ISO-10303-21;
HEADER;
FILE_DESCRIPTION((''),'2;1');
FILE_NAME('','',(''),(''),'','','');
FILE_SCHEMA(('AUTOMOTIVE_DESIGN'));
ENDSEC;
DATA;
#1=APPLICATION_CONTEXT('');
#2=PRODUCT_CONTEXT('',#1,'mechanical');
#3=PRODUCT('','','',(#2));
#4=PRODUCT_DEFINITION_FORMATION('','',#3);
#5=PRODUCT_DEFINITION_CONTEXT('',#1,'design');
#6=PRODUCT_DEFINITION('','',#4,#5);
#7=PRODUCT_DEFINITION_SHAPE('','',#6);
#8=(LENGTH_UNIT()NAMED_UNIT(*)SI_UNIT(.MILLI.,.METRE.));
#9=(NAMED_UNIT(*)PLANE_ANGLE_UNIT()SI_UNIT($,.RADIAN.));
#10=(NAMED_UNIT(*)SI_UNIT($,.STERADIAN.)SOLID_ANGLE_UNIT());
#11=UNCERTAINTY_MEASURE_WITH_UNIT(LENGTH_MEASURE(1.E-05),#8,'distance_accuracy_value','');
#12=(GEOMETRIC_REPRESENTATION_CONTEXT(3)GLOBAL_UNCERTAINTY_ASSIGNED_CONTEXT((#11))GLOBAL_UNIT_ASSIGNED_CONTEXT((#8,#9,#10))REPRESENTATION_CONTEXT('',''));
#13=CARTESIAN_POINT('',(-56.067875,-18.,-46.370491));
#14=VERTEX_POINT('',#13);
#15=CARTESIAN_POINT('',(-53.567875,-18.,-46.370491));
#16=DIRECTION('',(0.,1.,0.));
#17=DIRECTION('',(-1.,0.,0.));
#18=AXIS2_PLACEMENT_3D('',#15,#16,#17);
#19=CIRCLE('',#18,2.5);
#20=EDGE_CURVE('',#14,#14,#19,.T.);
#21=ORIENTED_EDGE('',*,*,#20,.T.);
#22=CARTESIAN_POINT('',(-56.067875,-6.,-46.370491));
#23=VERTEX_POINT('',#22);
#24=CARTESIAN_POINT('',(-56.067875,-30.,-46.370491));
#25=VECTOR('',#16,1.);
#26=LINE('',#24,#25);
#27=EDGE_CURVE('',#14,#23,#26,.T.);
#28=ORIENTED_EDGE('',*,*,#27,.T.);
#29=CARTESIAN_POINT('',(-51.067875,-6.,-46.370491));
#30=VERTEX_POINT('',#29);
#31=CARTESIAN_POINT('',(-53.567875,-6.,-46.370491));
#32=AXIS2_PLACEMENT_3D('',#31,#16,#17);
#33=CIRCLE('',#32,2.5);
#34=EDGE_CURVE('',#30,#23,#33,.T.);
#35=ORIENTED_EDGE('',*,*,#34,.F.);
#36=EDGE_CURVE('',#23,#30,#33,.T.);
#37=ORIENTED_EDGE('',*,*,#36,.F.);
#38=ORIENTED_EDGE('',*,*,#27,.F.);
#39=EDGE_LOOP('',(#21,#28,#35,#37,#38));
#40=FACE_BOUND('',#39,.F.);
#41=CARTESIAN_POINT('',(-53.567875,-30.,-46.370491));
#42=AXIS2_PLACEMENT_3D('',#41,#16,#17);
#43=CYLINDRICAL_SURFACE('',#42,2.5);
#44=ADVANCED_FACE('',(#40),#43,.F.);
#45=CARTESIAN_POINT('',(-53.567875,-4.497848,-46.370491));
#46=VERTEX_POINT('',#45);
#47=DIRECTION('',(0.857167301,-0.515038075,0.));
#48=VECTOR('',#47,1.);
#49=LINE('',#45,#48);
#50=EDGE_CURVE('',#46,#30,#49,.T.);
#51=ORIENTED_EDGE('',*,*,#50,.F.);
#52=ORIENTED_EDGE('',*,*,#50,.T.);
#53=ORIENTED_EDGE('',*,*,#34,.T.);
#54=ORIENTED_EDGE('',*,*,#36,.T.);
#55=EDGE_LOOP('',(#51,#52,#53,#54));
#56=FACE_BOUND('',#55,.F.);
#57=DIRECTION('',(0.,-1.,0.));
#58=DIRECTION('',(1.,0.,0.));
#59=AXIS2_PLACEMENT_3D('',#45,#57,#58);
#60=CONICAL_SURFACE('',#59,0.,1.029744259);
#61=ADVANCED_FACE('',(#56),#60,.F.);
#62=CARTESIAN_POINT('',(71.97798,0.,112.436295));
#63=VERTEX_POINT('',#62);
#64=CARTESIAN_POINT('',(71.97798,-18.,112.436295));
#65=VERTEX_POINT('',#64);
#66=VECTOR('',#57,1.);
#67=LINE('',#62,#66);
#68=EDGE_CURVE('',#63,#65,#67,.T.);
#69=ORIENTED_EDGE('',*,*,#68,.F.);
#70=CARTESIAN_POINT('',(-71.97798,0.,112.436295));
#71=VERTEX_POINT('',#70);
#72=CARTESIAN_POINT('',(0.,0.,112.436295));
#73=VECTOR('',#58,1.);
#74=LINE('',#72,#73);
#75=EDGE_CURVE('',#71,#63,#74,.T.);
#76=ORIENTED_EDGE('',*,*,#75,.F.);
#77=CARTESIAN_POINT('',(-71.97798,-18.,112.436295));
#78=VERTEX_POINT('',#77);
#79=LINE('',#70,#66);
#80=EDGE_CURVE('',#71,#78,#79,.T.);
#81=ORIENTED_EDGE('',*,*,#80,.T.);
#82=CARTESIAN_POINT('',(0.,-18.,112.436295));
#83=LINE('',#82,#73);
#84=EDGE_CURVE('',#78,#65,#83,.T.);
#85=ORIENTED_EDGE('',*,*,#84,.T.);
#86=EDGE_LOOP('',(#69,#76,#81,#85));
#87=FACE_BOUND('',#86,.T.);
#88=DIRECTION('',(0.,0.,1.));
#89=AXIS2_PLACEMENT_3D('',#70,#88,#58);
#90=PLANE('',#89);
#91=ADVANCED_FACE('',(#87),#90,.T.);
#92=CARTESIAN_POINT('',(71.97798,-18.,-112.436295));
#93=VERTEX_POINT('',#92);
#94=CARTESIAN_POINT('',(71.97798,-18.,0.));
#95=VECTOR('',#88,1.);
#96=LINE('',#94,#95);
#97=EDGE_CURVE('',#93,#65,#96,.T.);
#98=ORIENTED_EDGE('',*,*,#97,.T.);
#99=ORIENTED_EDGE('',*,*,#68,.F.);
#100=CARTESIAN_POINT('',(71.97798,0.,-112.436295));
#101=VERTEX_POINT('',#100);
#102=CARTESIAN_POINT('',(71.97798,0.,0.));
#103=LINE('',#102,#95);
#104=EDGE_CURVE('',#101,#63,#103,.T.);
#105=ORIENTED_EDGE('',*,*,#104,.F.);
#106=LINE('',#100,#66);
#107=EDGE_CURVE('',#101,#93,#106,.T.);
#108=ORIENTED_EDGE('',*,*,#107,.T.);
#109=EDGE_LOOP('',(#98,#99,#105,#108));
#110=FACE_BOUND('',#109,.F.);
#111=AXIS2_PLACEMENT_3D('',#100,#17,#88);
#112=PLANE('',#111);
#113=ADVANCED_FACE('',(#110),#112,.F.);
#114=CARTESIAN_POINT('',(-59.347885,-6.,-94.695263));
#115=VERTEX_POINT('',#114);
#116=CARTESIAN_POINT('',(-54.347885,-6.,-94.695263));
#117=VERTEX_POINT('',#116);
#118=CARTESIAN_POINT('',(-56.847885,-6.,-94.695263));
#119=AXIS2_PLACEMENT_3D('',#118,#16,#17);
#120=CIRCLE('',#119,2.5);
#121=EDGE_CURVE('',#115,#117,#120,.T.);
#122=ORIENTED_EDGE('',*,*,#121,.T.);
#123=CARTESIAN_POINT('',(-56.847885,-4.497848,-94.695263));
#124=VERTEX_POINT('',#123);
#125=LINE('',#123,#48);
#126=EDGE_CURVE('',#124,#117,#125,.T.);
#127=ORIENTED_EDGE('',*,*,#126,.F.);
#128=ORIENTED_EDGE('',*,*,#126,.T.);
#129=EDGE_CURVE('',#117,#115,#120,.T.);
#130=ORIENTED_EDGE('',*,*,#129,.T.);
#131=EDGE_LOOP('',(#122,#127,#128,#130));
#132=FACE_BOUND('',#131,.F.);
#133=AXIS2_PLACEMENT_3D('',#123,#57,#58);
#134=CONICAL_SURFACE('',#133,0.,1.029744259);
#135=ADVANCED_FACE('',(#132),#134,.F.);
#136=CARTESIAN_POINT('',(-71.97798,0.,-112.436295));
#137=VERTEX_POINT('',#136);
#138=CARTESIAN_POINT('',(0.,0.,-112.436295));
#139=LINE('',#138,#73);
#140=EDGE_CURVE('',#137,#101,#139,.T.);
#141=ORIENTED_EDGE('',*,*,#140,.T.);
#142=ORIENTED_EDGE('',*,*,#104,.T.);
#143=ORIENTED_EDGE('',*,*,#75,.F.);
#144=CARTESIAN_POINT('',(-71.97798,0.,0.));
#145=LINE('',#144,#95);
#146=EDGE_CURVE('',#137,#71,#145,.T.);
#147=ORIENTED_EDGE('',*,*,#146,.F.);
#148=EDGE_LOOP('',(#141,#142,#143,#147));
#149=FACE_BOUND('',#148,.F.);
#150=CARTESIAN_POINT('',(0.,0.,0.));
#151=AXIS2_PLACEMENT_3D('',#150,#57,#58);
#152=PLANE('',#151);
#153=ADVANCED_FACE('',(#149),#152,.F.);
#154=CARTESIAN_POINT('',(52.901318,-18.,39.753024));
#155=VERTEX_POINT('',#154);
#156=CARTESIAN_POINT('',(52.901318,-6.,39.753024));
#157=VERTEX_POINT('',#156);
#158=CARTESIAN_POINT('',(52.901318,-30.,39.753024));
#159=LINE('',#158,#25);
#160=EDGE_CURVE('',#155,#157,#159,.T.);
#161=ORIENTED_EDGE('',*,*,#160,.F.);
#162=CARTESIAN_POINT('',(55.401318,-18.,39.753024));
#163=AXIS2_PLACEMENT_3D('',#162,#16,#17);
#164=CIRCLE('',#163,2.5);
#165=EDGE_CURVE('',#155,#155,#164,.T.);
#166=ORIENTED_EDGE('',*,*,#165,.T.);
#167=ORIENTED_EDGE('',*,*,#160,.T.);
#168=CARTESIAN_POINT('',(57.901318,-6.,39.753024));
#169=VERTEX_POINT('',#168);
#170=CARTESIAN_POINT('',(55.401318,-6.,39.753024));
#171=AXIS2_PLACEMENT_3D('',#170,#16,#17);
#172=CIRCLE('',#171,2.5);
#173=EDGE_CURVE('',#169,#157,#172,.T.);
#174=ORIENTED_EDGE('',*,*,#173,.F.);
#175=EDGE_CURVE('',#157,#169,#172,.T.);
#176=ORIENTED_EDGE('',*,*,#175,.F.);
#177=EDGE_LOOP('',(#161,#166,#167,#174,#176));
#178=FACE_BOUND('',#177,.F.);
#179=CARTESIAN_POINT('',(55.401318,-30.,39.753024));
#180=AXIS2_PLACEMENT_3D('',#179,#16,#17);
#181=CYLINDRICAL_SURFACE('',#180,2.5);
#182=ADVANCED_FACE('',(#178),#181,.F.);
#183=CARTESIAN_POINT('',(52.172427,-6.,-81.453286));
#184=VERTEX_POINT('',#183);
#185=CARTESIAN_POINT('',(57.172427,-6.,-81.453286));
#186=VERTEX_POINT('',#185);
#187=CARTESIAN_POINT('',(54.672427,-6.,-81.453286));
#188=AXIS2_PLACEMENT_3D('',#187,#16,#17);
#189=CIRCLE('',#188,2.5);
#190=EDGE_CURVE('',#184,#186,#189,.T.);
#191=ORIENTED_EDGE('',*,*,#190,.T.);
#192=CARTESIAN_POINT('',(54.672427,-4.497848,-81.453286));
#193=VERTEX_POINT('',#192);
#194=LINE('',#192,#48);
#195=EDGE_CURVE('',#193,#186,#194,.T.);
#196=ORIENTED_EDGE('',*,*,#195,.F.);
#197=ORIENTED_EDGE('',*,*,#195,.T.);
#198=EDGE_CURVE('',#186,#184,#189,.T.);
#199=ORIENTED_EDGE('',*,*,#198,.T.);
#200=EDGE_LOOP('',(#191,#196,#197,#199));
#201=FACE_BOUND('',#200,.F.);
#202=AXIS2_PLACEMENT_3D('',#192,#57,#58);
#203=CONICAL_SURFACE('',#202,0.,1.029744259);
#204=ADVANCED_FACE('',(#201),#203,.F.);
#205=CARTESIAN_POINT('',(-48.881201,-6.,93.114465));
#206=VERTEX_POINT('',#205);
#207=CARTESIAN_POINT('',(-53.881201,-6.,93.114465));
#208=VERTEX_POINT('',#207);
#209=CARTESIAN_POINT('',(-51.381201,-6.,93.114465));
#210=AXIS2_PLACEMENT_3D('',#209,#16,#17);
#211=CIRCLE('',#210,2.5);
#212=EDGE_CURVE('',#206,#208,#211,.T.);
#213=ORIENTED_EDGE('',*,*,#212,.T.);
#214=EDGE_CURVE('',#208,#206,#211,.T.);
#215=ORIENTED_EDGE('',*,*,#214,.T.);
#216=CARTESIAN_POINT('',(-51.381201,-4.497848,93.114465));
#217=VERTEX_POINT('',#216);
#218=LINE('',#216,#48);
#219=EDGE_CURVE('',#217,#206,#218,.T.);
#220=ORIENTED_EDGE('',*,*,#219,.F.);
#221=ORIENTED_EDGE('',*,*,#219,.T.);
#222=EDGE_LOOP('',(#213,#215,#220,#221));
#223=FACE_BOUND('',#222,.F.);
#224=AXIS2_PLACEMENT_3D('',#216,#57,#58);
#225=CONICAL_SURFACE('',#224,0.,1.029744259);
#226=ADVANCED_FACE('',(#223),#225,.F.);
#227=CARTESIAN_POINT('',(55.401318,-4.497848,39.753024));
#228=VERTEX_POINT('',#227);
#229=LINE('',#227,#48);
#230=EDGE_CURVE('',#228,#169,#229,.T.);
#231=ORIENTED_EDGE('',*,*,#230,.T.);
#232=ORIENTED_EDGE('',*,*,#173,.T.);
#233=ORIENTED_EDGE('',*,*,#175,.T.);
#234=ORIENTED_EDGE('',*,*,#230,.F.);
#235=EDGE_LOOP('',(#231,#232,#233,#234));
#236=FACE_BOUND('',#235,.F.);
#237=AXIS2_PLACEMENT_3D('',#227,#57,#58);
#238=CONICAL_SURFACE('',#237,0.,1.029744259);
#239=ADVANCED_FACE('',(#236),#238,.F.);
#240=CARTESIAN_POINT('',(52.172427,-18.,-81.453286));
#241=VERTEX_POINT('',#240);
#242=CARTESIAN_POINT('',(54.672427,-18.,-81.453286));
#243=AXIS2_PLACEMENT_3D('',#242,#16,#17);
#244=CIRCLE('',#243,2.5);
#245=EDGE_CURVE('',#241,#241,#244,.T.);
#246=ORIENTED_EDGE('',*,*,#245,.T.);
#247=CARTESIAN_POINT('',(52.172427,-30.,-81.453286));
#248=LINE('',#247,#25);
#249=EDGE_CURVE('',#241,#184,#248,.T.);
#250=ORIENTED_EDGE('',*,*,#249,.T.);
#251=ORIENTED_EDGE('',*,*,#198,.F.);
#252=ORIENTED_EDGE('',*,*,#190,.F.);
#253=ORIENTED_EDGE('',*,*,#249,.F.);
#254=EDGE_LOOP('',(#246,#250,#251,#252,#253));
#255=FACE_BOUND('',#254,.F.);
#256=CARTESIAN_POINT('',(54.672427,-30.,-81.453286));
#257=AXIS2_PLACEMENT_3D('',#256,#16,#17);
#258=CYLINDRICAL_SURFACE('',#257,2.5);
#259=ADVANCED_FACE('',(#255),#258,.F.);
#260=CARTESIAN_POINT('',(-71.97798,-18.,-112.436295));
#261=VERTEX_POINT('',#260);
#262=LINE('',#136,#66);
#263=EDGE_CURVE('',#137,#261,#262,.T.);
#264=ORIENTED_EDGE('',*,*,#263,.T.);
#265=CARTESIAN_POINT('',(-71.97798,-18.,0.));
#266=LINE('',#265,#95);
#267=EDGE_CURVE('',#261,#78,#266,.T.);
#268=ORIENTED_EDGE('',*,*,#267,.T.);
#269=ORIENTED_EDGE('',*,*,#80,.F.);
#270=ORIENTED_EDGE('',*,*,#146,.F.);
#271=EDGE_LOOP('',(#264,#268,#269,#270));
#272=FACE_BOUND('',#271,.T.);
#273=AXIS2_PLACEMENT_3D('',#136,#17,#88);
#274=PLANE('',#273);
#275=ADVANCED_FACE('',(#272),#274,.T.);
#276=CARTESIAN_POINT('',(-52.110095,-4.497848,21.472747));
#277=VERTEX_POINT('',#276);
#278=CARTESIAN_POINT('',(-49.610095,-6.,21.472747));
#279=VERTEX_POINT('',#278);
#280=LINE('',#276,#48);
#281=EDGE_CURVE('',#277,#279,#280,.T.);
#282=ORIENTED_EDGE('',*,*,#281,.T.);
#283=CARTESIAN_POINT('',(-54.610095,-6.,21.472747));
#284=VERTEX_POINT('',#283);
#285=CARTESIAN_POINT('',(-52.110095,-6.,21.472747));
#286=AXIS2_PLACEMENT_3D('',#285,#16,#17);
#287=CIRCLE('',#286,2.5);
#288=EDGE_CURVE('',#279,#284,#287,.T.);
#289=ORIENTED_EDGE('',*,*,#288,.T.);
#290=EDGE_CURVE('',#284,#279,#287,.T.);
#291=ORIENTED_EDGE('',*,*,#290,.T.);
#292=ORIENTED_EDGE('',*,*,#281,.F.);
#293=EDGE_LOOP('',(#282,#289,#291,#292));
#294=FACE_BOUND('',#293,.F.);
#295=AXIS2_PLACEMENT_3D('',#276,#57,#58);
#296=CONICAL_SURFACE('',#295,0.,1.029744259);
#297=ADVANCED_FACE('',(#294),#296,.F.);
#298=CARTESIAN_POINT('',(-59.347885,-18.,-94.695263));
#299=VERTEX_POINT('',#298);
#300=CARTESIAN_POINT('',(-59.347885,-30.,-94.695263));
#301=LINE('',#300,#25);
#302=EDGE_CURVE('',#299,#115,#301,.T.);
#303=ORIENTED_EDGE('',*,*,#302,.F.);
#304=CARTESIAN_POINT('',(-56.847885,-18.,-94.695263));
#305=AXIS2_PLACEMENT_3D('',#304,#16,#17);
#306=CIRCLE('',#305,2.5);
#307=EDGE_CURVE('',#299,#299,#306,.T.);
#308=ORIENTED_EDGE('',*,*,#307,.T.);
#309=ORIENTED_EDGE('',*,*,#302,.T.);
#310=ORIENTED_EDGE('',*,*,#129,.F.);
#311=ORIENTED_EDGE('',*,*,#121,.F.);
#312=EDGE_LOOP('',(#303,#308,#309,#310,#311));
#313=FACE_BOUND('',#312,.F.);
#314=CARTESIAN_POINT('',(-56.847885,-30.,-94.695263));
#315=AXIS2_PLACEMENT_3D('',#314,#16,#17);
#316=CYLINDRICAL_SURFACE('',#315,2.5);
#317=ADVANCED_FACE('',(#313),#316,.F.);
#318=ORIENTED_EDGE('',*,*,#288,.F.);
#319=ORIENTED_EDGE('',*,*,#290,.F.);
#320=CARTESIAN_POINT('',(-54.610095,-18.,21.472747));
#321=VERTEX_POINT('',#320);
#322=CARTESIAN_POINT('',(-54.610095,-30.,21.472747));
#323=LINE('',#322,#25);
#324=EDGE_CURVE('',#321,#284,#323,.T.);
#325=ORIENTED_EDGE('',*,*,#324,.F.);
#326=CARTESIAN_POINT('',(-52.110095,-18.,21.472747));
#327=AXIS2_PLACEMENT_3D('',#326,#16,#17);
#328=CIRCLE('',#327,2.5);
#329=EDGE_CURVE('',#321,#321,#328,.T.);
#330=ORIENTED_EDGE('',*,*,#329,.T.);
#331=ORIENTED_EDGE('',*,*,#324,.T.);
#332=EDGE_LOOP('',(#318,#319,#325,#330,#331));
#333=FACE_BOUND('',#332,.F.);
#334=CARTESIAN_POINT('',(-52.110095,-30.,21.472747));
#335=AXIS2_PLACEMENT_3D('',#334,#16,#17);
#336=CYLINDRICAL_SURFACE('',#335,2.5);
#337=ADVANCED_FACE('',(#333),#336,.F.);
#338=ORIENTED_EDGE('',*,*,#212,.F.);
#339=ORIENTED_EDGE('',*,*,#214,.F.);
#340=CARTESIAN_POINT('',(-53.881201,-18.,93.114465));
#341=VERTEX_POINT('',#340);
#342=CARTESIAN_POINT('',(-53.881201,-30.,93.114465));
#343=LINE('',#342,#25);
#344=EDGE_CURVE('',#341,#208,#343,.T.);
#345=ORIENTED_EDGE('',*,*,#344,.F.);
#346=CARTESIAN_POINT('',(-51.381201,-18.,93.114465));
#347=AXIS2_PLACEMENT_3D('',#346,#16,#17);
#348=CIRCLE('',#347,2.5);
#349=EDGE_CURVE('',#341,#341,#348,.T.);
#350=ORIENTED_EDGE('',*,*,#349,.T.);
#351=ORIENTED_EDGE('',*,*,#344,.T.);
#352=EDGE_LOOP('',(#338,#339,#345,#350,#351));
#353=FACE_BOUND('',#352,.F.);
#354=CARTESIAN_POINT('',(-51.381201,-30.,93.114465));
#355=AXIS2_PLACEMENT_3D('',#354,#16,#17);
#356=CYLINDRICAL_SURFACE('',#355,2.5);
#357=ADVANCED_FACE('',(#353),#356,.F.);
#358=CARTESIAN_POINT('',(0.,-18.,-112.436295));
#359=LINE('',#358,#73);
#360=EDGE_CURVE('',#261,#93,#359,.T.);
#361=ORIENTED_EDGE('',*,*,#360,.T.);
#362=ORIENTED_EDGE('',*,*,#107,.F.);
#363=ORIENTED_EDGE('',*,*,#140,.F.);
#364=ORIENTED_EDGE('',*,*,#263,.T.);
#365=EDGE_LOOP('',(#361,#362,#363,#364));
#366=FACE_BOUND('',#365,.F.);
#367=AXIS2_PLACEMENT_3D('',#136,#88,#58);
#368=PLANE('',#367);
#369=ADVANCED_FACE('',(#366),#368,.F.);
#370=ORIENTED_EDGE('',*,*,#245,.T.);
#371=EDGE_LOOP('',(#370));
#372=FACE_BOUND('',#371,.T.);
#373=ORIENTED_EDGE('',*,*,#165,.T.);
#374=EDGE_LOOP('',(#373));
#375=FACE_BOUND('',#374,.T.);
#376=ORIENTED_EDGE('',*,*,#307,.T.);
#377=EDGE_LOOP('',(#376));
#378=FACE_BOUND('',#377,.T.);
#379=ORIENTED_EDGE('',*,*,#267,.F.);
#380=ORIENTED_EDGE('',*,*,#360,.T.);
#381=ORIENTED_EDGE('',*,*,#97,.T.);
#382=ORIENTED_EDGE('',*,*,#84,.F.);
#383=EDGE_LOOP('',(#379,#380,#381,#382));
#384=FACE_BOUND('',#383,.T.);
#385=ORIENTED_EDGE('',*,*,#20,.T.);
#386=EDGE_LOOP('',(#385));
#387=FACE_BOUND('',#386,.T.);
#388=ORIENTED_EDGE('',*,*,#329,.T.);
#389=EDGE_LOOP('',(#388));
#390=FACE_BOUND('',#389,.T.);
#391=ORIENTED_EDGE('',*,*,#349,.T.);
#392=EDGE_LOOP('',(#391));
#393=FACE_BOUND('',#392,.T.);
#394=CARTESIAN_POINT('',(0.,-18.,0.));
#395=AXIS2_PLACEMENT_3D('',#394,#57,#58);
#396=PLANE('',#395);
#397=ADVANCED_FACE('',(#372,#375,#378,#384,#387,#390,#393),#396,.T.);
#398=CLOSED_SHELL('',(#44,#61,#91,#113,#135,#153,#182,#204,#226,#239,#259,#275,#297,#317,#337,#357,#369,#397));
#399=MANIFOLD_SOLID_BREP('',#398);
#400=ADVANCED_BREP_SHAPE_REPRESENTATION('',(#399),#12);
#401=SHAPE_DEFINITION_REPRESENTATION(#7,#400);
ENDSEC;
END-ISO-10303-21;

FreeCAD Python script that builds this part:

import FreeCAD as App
import Part
import Sketcher
Q = App.Units.Quantity

doc = App.newDocument("Part")
params = doc.addObject("Spreadsheet::Sheet", "Params")
for row, (alias, value) in enumerate([
    ("pad1_length", "18 mm"),
    ("sketch2_diameter", "5 mm"),
    ("hole_diameter", "5 mm"),
    ("hole_depth", "12 mm"),
], start=1):
    params.set(f"A{row}", alias)
    params.set(f"B{row}", "=" + value)
    params.setAlias(f"B{row}", alias)

body = doc.addObject("PartDesign::Body", "Body")

# Sketch on XZ plane
sketch1 = doc.addObject("Sketcher::SketchObject", "Sketch")
body.addObject(sketch1)
sketch1.AttachmentSupport = (doc.XZ_Plane, [""])
sketch1.MapMode = "FlatFace"
sketch1.addGeometry(Part.LineSegment(App.Vector(-72, 112, 0), App.Vector(-72, -112, 0)), False)
sketch1.addGeometry(Part.LineSegment(App.Vector(-72, -112, 0), App.Vector(72, -112, 0)), False)
sketch1.addGeometry(Part.LineSegment(App.Vector(72, -112, 0), App.Vector(72, 112, 0)), False)
sketch1.addGeometry(Part.LineSegment(App.Vector(72, 112, 0), App.Vector(-72, 112, 0)), False)
sketch1.addConstraint(Sketcher.Constraint("Coincident", 0, 2, 1, 1))
sketch1.addConstraint(Sketcher.Constraint("Coincident", 1, 2, 2, 1))
sketch1.addConstraint(Sketcher.Constraint("Coincident", 2, 2, 3, 1))
sketch1.addConstraint(Sketcher.Constraint("Coincident", 3, 2, 0, 1))
sketch1.addConstraint(Sketcher.Constraint("Vertical", 0))
sketch1.addConstraint(Sketcher.Constraint("Horizontal", 1))
sketch1.addConstraint(Sketcher.Constraint("Vertical", 2))
sketch1.addConstraint(Sketcher.Constraint("Horizontal", 3))
sketch1.addConstraint(Sketcher.Constraint("Symmetric", 0, 2, 2, 2, -1, 1))
sketch1.addConstraint(Sketcher.Constraint("DistanceX", 1, 1, 1, 2, Q("143.955961 mm")))
sketch1.addConstraint(Sketcher.Constraint("DistanceY", 0, 2, 0, 1, Q("224.872589 mm")))
pad1 = doc.addObject("PartDesign::Pad", "Pad")
body.addObject(pad1)
pad1.Profile = sketch1
pad1.setExpression("Length", "Params.pad1_length")

# Sketch on XZ plane
sketch2 = doc.addObject("Sketcher::SketchObject", "Sketch001")
body.addObject(sketch2)
sketch2.AttachmentSupport = (doc.XZ_Plane, [""])
sketch2.MapMode = "FlatFace"
sketch2.AttachmentOffset = App.Placement(App.Vector(0, 0, 18), App.Rotation())
sketch2.addGeometry(Part.Circle(App.Vector(55.4, 39.8, 0), App.Vector(0, 0, 1), 2.5), False)
sketch2.addGeometry(Part.Circle(App.Vector(-52.1, 21.5, 0), App.Vector(0, 0, 1), 2.5), False)
sketch2.addGeometry(Part.Circle(App.Vector(-51.4, 93.1, 0), App.Vector(0, 0, 1), 2.5), False)
sketch2.addGeometry(Part.Circle(App.Vector(-53.6, -46.4, 0), App.Vector(0, 0, 1), 2.5), False)
sketch2.addGeometry(Part.Circle(App.Vector(-56.8, -94.7, 0), App.Vector(0, 0, 1), 2.5), False)
sketch2.addGeometry(Part.Circle(App.Vector(54.7, -81.5, 0), App.Vector(0, 0, 1), 2.5), False)
sketch2.addConstraint(Sketcher.Constraint("Equal", 0, 1))
sketch2.addConstraint(Sketcher.Constraint("Equal", 1, 2))
sketch2.addConstraint(Sketcher.Constraint("Equal", 2, 3))
sketch2.addConstraint(Sketcher.Constraint("Equal", 3, 4))
sketch2.addConstraint(Sketcher.Constraint("Equal", 4, 5))
sketch2.addConstraint(Sketcher.Constraint("Diameter", 0, Q("5 mm")))
sketch2.addConstraint(Sketcher.Constraint("DistanceX", 2, 3, -1, 1, Q("51.381201 mm")))
sketch2.addConstraint(Sketcher.Constraint("DistanceY", 3, 3, -1, 1, Q("46.370491 mm")))
sketch2.addConstraint(Sketcher.Constraint("DistanceY", 1, 3, 2, 3, Q("71.641719 mm")))
sketch2.addConstraint(Sketcher.Constraint("DistanceX", 2, 3, 0, 3, Q("106.782518 mm")))
sketch2.addConstraint(Sketcher.Constraint("DistanceY", 0, 3, 2, 3, Q("53.361442 mm")))
sketch2.addConstraint(Sketcher.Constraint("DistanceX", 3, 3, 1, 3, Q("1.457781 mm")))
sketch2.addConstraint(Sketcher.Constraint("DistanceX", 4, 3, 3, 3, Q("3.28001 mm")))
sketch2.addConstraint(Sketcher.Constraint("DistanceY", 4, 3, 3, 3, Q("48.324771 mm")))
sketch2.addConstraint(Sketcher.Constraint("DistanceY", 4, 3, 1, 3, Q("116.168009 mm")))
sketch2.addConstraint(Sketcher.Constraint("DistanceX", 5, 3, 0, 3, Q("0.72889 mm")))
sketch2.addConstraint(Sketcher.Constraint("DistanceY", 5, 3, 0, 3, Q("121.20631 mm")))
sketch2.addConstraint(Sketcher.Constraint("DistanceX", 1, 3, -1, 1, Q("52.110095 mm")))
sketch2.setExpression("Constraints[5]", "Params.sketch2_diameter")
doc.recompute()
hole = doc.addObject("PartDesign::Hole", "Hole")
body.addObject(hole)
hole.Profile = sketch2
hole.ThreadType = "None"
hole.setExpression("Diameter", "Params.hole_diameter")
hole.DepthType = "Dimension"
hole.setExpression("Depth", "Params.hole_depth")
hole.DrillPoint = "Angled"
hole.DrillPointAngle = 118

doc.recompute()
